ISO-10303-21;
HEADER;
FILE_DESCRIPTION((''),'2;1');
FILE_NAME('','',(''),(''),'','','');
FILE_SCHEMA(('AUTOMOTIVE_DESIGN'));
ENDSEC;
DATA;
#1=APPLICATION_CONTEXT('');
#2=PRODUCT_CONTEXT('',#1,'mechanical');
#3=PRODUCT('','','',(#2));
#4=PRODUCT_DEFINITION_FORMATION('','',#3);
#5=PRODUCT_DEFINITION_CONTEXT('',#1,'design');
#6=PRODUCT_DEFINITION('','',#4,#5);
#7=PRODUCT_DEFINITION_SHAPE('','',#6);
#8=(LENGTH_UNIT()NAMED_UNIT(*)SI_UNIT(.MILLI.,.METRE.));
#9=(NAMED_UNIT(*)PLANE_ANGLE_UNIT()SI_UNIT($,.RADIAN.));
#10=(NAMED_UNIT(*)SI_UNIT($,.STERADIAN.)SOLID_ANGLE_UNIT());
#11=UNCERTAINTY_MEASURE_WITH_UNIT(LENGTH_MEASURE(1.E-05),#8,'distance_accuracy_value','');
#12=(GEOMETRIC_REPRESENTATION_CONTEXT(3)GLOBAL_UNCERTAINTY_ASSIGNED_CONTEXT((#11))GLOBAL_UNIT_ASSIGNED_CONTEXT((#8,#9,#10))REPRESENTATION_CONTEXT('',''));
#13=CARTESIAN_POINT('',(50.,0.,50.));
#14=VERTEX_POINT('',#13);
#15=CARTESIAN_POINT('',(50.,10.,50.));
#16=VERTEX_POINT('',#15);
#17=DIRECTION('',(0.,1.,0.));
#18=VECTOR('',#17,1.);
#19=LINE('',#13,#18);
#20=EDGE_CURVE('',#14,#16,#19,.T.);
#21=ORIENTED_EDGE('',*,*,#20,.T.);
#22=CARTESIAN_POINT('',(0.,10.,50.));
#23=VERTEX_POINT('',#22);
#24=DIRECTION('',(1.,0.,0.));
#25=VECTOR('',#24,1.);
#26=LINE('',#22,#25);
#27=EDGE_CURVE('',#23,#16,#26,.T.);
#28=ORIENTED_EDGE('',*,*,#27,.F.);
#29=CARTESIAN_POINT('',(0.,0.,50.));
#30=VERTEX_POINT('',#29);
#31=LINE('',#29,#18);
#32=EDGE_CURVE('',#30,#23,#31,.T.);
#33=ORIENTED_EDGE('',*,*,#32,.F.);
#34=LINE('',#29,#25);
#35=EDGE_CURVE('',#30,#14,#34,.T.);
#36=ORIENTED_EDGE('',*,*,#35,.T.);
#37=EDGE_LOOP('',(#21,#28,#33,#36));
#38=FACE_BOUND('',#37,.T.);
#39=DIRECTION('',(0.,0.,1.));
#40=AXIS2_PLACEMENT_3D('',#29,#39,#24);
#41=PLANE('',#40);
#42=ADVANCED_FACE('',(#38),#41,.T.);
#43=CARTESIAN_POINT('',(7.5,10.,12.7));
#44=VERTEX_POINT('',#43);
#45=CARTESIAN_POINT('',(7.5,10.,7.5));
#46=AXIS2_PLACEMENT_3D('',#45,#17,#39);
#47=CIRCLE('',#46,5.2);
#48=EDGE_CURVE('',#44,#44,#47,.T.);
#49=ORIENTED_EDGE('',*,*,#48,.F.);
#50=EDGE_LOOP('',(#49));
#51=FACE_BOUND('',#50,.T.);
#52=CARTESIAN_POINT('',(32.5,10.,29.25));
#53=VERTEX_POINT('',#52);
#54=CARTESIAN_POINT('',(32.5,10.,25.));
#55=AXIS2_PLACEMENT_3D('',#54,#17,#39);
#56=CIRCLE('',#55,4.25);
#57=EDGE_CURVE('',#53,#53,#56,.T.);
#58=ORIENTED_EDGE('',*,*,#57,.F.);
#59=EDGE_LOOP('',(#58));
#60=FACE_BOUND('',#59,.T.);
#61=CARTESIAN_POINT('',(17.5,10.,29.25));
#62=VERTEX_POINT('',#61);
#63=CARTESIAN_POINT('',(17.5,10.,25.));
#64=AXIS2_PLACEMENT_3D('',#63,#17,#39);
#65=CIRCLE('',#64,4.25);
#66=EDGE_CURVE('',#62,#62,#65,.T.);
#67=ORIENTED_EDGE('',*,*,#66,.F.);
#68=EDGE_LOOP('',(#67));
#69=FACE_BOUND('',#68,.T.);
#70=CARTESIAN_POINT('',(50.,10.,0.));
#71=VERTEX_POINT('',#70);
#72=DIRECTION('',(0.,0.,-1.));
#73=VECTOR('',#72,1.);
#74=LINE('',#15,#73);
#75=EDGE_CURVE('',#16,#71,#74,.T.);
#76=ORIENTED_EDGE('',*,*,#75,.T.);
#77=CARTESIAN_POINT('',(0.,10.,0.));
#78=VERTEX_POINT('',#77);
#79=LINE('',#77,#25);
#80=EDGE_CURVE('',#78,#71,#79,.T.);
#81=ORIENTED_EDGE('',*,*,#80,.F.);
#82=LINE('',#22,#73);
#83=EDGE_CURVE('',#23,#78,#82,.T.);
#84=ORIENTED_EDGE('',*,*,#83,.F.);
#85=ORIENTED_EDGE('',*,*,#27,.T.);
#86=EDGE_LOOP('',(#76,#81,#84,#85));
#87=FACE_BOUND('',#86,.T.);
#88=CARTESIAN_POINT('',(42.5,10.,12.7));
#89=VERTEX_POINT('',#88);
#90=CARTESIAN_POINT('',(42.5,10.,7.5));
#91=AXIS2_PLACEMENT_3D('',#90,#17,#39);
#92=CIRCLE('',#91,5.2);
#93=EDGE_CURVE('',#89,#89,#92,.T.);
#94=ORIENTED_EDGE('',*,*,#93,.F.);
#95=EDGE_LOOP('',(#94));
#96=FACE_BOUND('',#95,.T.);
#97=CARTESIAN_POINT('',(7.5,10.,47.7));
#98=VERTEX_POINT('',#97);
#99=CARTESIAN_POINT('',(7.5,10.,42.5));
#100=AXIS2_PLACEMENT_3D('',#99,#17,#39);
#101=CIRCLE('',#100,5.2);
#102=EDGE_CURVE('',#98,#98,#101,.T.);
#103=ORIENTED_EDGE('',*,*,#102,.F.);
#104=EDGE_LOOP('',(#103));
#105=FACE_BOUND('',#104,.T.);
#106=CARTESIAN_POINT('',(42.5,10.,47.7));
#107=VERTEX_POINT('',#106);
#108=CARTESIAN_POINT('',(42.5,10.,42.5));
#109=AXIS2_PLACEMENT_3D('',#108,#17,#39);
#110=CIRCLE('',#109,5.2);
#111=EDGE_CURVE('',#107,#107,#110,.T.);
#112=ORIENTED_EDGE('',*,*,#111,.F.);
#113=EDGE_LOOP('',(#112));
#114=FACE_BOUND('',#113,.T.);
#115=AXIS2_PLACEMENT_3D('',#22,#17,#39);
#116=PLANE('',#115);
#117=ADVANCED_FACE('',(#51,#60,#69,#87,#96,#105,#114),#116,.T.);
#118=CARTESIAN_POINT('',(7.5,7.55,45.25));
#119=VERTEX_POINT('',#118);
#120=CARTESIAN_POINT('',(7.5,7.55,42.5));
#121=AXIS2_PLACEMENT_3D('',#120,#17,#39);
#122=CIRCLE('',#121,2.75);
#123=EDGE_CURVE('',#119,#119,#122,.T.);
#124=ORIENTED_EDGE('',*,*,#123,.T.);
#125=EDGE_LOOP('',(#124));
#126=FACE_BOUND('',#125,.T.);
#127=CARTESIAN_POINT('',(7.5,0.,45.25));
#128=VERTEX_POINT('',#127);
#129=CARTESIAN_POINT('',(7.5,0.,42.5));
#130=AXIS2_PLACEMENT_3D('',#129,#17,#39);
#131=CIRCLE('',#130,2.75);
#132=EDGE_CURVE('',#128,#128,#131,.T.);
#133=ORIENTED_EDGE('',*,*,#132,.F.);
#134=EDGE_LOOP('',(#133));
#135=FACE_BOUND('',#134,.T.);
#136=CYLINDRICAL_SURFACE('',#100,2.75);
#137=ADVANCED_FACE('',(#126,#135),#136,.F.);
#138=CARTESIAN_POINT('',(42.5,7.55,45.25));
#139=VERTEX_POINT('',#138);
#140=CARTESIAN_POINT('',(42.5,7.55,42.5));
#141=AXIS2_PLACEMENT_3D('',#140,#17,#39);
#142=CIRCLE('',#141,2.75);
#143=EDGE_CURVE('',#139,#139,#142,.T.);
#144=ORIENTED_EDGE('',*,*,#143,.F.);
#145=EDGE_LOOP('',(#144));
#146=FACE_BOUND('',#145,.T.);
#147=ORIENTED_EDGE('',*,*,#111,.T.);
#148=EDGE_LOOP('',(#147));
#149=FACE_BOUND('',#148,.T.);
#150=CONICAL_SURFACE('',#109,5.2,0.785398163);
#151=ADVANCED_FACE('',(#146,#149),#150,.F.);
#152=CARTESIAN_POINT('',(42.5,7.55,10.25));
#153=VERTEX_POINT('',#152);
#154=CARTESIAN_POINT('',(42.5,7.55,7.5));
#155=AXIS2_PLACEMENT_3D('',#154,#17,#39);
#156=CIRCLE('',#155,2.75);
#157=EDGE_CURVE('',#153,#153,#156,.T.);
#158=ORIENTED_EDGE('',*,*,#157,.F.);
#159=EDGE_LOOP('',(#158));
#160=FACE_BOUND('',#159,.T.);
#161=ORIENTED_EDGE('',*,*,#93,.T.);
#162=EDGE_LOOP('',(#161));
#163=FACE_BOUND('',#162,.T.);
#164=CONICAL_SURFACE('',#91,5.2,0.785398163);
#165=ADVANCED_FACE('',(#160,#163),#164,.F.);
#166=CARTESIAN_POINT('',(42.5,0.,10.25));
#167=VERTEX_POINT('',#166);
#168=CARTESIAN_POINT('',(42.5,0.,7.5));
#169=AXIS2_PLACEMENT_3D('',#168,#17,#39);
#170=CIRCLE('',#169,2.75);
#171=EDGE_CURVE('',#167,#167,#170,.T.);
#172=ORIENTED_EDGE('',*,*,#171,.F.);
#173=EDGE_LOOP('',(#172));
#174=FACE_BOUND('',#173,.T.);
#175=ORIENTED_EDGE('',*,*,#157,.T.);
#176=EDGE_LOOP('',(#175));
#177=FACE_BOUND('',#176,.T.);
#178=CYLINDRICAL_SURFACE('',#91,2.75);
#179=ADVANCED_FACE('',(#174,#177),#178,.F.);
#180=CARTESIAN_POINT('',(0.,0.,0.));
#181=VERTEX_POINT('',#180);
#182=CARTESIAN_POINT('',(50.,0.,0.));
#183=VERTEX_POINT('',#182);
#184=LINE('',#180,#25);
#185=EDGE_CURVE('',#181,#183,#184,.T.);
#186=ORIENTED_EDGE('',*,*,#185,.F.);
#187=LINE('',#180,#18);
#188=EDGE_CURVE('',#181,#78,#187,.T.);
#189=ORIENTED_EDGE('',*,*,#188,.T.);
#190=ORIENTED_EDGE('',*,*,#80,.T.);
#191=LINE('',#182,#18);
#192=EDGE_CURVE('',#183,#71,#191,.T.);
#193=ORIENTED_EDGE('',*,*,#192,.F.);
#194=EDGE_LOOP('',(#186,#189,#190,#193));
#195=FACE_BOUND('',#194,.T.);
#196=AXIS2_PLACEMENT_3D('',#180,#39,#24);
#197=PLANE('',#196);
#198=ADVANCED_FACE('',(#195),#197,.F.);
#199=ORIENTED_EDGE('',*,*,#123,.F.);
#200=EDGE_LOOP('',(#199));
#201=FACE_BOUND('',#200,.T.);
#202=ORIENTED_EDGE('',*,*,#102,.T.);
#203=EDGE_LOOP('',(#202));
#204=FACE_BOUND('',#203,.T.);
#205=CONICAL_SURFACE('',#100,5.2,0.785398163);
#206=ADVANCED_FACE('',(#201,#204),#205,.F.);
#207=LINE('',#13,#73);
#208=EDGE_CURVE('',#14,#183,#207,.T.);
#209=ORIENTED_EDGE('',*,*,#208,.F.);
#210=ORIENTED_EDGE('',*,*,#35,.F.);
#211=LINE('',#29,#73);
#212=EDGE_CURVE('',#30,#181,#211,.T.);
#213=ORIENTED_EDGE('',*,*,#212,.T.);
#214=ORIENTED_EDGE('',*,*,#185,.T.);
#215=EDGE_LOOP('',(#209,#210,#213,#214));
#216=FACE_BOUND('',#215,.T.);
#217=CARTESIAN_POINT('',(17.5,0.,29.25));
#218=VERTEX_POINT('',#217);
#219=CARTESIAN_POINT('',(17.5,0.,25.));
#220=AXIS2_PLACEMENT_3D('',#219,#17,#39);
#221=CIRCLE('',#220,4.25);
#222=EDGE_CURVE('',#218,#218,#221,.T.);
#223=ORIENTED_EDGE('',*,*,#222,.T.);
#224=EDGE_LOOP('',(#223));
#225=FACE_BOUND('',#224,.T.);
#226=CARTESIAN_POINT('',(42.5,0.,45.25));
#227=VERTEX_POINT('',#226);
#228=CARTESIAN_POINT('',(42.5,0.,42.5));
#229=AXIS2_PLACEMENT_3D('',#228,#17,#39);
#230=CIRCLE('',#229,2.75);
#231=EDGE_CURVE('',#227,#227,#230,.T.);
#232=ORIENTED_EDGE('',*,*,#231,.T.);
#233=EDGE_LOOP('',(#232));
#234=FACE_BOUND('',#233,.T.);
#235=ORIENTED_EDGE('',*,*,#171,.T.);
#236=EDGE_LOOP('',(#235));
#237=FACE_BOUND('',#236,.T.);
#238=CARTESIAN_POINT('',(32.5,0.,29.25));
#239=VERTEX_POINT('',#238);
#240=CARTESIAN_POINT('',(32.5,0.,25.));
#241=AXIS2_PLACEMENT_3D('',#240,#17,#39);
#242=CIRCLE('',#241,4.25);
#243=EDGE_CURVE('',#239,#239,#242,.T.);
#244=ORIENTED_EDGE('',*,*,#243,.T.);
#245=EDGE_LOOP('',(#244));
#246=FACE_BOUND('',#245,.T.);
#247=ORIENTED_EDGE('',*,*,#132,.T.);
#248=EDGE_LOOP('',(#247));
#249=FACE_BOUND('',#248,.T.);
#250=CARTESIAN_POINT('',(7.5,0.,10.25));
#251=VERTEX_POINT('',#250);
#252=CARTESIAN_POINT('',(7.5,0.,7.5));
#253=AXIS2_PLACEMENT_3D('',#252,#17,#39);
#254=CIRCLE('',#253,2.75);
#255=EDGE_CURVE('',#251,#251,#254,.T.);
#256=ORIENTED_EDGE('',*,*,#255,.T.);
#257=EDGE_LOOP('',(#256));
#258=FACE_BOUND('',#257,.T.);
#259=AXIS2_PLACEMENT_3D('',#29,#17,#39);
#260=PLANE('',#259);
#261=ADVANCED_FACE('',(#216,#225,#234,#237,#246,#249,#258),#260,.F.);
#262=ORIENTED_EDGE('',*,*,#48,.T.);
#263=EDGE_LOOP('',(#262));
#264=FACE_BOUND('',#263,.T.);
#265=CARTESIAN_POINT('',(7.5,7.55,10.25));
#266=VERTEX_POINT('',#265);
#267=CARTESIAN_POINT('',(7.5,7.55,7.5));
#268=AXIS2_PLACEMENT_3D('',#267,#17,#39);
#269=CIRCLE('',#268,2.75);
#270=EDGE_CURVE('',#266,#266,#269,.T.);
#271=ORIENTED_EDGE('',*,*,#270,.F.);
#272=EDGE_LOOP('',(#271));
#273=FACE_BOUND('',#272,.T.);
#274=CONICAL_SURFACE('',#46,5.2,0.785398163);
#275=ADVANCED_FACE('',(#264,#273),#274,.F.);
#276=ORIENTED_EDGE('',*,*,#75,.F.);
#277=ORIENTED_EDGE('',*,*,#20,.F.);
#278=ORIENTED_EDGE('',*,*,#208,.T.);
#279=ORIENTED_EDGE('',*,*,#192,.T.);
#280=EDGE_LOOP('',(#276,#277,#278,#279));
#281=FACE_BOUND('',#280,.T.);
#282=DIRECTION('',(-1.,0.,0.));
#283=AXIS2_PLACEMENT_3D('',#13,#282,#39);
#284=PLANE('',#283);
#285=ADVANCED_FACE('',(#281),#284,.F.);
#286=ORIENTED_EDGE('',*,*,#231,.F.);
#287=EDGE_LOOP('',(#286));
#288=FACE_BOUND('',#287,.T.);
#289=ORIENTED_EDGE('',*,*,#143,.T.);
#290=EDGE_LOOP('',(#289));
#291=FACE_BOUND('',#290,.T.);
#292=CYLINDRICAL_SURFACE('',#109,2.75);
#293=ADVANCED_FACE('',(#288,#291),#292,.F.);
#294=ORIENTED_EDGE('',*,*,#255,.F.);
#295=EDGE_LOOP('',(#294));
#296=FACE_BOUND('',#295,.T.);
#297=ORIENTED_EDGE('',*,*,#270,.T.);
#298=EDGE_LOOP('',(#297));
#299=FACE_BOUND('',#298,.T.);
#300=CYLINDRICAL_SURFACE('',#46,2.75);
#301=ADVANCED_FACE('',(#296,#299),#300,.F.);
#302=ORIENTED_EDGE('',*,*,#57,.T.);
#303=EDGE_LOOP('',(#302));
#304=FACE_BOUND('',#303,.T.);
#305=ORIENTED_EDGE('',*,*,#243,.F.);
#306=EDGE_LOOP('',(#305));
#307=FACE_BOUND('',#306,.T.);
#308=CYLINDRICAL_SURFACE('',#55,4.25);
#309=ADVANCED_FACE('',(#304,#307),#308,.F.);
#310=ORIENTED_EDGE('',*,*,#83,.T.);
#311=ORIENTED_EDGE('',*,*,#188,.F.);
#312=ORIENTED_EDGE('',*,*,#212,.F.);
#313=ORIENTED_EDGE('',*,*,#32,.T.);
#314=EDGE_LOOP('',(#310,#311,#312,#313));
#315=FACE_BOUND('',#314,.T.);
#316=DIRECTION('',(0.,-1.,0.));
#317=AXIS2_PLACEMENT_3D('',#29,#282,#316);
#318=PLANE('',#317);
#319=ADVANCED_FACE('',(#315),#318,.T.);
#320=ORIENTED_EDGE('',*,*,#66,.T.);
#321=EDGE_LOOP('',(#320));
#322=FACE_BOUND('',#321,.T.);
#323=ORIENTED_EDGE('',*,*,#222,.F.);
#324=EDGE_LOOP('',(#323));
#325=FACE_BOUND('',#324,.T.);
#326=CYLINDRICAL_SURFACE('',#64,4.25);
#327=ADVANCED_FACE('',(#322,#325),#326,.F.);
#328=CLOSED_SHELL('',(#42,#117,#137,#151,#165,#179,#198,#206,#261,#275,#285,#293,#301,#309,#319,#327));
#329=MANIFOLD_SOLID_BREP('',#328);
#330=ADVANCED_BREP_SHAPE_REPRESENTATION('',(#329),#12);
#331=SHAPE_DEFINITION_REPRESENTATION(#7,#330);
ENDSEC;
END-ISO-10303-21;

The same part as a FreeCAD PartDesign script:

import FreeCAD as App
import Part
import Sketcher

doc = App.newDocument("Part")
body = doc.addObject("PartDesign::Body", "Body")

# Sketch on XY plane
sketch1 = body.newObject("Sketcher::SketchObject", "Sketch")
sketch1.AttachmentSupport = (doc.getObject("XY_Plane"), [""])
sketch1.MapMode = "FlatFace"
sketch1.addGeometry(Part.LineSegment(App.Vector(0, 10, 0), App.Vector(0, 0, 0)), False)
sketch1.addGeometry(Part.LineSegment(App.Vector(0, 0, 0), App.Vector(50, 0, 0)), False)
sketch1.addGeometry(Part.LineSegment(App.Vector(50, 0, 0), App.Vector(50, 10, 0)), False)
sketch1.addGeometry(Part.LineSegment(App.Vector(50, 10, 0), App.Vector(0, 10, 0)), False)
sketch1.addConstraint(Sketcher.Constraint("Coincident", 0, 2, 1, 1))
sketch1.addConstraint(Sketcher.Constraint("Coincident", 1, 2, 2, 1))
sketch1.addConstraint(Sketcher.Constraint("Coincident", 2, 2, 3, 1))
sketch1.addConstraint(Sketcher.Constraint("Coincident", 3, 2, 0, 1))
sketch1.addConstraint(Sketcher.Constraint("Vertical", 0))
sketch1.addConstraint(Sketcher.Constraint("Horizontal", 1))
sketch1.addConstraint(Sketcher.Constraint("Vertical", 2))
sketch1.addConstraint(Sketcher.Constraint("Horizontal", 3))
sketch1.addConstraint(Sketcher.Constraint("Coincident", 0, 2, -1, 1))
sketch1.addConstraint(Sketcher.Constraint("DistanceX", 1, 1, 1, 2, 50.0))
sketch1.addConstraint(Sketcher.Constraint("DistanceY", 0, 2, 0, 1, 10.0))
pad1 = body.newObject("PartDesign::Pad", "Pad")
pad1.Profile = sketch1
pad1.Length = 50

# Sketch on XZ plane
sketch2 = body.newObject("Sketcher::SketchObject", "Sketch001")
sketch2.AttachmentSupport = (doc.getObject("XZ_Plane"), [""])
sketch2.MapMode = "FlatFace"
sketch2.AttachmentOffset = App.Placement(App.Vector(0, 0, -10), App.Rotation())
sketch2.addGeometry(Part.Circle(App.Vector(17.5, 25, 0), App.Vector(0, 0, 1), 4.25), False)
sketch2.addGeometry(Part.Circle(App.Vector(32.5, 25, 0), App.Vector(0, 0, 1), 4.25), False)
sketch2.addConstraint(Sketcher.Constraint("Equal", 0, 1))
sketch2.addConstraint(Sketcher.Constraint("Horizontal", 0, 3, 1, 3))
sketch2.addConstraint(Sketcher.Constraint("Diameter", 0, 8.5))
sketch2.addConstraint(Sketcher.Constraint("DistanceY", -1, 1, 0, 3, 25.0))
sketch2.addConstraint(Sketcher.Constraint("DistanceX", 0, 3, 1, 3, 15.0))
sketch2.addConstraint(Sketcher.Constraint("DistanceX", -1, 1, 0, 3, 17.5))
doc.recompute()
hole = body.newObject("PartDesign::Hole", "Hole")
hole.Profile = sketch2
hole.ThreadType = "None"
hole.Diameter = 8.5
hole.DepthType = "ThroughAll"
hole.Reversed = True

# Sketch on XZ plane
sketch3 = body.newObject("Sketcher::SketchObject", "Sketch002")
sketch3.AttachmentSupport = (doc.getObject("XZ_Plane"), [""])
sketch3.MapMode = "FlatFace"
sketch3.AttachmentOffset = App.Placement(App.Vector(0, 0, -10), App.Rotation())
sketch3.addGeometry(Part.Circle(App.Vector(7.5, 7.5, 0), App.Vector(0, 0, 1), 2.75), False)
sketch3.addGeometry(Part.Circle(App.Vector(42.5, 7.5, 0), App.Vector(0, 0, 1), 2.75), False)
sketch3.addGeometry(Part.Circle(App.Vector(42.5, 42.5, 0), App.Vector(0, 0, 1), 2.75), False)
sketch3.addGeometry(Part.Circle(App.Vector(7.5, 42.5, 0), App.Vector(0, 0, 1), 2.75), False)
sketch3.addConstraint(Sketcher.Constraint("Equal", 0, 1))
sketch3.addConstraint(Sketcher.Constraint("Equal", 1, 2))
sketch3.addConstraint(Sketcher.Constraint("Equal", 2, 3))
sketch3.addConstraint(Sketcher.Constraint("Horizontal", 0, 3, 1, 3))
sketch3.addConstraint(Sketcher.Constraint("Horizontal", 2, 3, 3, 3))
sketch3.addConstraint(Sketcher.Constraint("Vertical", 1, 3, 2, 3))
sketch3.addConstraint(Sketcher.Constraint("Vertical", 0, 3, 3, 3))
sketch3.addConstraint(Sketcher.Constraint("Diameter", 0, 5.5))
sketch3.addConstraint(Sketcher.Constraint("DistanceX", 0, 3, 1, 3, 35.0))
sketch3.addConstraint(Sketcher.Constraint("DistanceY", 1, 3, 2, 3, 35.0))
sketch3.addConstraint(Sketcher.Constraint("DistanceX", -1, 1, 0, 3, 7.5))
sketch3.addConstraint(Sketcher.Constraint("DistanceY", -1, 1, 0, 3, 7.5))
doc.recompute()
hole2 = body.newObject("PartDesign::Hole", "Hole001")
hole2.Profile = sketch3
hole2.ThreadType = "None"
hole2.Diameter = 5.5
hole2.DepthType = "ThroughAll"
hole2.HoleCutType = "Countersink"
hole2.HoleCutDiameter = 10.4
hole2.HoleCutCountersinkAngle = 90
hole2.Reversed = True

doc.recompute()
